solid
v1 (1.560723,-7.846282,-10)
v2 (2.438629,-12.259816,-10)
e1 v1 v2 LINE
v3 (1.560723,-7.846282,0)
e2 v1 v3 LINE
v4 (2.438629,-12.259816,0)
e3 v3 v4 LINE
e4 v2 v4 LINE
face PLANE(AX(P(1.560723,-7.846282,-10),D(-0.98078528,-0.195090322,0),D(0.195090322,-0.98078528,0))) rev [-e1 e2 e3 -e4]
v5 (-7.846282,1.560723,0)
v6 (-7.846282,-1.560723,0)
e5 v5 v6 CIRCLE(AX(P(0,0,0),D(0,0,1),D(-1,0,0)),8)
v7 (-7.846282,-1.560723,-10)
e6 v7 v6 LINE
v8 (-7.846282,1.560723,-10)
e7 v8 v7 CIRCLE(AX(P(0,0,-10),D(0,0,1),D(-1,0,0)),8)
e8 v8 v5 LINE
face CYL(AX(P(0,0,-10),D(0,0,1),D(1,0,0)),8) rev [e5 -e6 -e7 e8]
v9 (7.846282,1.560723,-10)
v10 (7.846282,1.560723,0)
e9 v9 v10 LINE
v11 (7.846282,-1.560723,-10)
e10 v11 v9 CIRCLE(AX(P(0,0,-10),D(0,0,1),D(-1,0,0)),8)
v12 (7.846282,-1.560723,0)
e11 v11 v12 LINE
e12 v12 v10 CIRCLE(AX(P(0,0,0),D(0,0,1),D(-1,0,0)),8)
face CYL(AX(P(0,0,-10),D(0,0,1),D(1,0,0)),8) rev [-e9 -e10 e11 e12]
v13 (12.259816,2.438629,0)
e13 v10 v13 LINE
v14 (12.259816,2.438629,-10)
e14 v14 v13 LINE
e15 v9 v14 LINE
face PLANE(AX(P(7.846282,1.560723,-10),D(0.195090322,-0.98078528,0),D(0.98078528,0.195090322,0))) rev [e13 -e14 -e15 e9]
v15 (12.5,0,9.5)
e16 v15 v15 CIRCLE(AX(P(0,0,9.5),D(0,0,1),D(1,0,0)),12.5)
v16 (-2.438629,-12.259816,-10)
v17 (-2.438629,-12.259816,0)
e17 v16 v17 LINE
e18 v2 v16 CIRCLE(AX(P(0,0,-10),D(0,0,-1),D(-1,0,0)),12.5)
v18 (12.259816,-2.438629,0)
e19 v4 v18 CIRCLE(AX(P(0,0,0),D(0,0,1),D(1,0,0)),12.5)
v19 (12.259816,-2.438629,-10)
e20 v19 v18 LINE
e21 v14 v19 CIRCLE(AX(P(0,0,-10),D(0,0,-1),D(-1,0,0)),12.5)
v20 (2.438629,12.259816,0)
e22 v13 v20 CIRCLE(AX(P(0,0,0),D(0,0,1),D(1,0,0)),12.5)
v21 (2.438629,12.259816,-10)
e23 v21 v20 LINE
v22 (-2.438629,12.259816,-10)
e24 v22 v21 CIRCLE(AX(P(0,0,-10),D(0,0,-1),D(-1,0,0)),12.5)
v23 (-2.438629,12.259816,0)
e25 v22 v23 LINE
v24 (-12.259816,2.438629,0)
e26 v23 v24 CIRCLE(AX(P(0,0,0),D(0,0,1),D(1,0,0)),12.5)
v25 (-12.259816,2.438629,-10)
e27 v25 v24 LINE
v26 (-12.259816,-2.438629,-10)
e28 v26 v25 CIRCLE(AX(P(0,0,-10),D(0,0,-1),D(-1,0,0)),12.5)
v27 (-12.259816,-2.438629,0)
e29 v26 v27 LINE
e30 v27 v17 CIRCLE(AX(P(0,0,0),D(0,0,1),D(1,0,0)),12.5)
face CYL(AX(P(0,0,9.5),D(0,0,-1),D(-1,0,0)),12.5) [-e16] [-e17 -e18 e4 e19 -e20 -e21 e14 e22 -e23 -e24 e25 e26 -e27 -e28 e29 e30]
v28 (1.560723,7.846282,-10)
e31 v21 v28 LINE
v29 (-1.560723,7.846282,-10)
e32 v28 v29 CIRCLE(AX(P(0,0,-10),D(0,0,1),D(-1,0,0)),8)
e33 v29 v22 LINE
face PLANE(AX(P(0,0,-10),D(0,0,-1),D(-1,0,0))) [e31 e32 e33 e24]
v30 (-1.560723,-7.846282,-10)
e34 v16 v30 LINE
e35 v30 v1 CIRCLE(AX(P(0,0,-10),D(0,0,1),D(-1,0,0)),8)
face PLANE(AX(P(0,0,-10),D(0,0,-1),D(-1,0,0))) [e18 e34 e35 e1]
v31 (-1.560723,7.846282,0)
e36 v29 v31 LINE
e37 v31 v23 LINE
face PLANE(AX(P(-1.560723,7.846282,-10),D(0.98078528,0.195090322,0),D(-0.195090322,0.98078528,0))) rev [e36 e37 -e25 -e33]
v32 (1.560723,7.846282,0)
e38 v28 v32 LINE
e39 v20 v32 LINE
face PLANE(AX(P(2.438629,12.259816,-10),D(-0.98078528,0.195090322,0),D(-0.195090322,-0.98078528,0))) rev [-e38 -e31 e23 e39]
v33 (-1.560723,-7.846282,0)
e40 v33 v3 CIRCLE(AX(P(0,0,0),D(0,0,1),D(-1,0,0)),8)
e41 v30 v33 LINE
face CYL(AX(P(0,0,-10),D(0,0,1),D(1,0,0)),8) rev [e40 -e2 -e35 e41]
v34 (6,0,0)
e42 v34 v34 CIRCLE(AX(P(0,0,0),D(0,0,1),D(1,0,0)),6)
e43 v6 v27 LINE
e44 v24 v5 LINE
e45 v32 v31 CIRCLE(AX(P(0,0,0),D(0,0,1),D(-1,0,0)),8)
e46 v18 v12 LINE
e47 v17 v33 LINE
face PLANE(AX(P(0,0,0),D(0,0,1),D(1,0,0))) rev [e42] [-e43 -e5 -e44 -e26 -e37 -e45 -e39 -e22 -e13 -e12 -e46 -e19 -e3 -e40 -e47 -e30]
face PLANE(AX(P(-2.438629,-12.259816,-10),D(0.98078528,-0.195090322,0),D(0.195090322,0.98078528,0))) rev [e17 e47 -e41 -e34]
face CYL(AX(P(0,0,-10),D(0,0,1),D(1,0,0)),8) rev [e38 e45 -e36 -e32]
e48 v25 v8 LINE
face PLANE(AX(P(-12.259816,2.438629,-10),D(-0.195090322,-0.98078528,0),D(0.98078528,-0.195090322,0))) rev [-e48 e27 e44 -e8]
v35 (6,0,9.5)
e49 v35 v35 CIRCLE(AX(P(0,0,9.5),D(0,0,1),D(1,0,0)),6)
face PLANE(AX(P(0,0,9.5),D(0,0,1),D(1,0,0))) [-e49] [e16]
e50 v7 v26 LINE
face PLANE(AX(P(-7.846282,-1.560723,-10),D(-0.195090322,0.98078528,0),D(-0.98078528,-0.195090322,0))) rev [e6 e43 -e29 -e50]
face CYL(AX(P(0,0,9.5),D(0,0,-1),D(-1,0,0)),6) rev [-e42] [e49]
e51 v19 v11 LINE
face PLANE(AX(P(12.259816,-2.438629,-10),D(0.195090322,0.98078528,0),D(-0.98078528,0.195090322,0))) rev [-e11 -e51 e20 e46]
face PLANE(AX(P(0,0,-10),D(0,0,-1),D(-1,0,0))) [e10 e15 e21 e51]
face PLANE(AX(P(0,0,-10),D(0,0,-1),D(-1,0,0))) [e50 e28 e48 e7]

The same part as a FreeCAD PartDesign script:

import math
import FreeCAD as App
import Part
import Sketcher

V = App.Vector
Q = App.Units.Quantity

doc = App.newDocument("Part")
body = doc.addObject("PartDesign::Body", "Body")

sketch1 = doc.addObject("Sketcher::SketchObject", "Sketch")
body.addObject(sketch1)
sketch1.AttachmentSupport = (doc.XY_Plane, [""])
sketch1.MapMode = "FlatFace"
sketch1.addGeometry([
    Part.Circle(V(0, 0, 0), V(0, 0, 1), 12.5),
    Part.Circle(V(0, 0, 0), V(0, 0, 1), 6),
], False)
sketch1.addConstraint([
    Sketcher.Constraint("Coincident", 0, 3, -1, 1),
    Sketcher.Constraint("Coincident", 1, 3, -1, 1),
    Sketcher.Constraint("Diameter", 0, Q("25 mm")),
    Sketcher.Constraint("Diameter", 1, Q("12 mm")),
])
pad1 = doc.addObject("PartDesign::Pad", "Pad")
body.addObject(pad1)
pad1.Profile = sketch1
pad1.Length = 9.5

sketch2 = doc.addObject("Sketcher::SketchObject", "Sketch001")
body.addObject(sketch2)
sketch2.AttachmentSupport = (doc.XY_Plane, [""])
sketch2.MapMode = "FlatFace"
sketch2.addGeometry([
    Part.LineSegment(V(-7.846282, -1.560723, 0), V(-12.259816, -2.438629, 0)),
    Part.ArcOfCircle(Part.Circle(V(0, 0, 0), V(0, 0, 1), 12.5), math.radians(168.75), math.radians(191.25)),
    Part.LineSegment(V(-12.259816, 2.438629, 0), V(-7.846282, 1.560723, 0)),
    Part.ArcOfCircle(Part.Circle(V(0, 0, 0), V(0, 0, 1), 8), math.radians(168.75), math.radians(191.25)),
    Part.LineSegment(V(-1.560723, 7.846282, 0), V(-2.438629, 12.259816, 0)),
    Part.ArcOfCircle(Part.Circle(V(0, 0, 0), V(0, 0, 1), 12.5), math.radians(78.75), math.radians(101.25)),
    Part.LineSegment(V(2.438629, 12.259816, 0), V(1.560723, 7.846282, 0)),
    Part.ArcOfCircle(Part.Circle(V(0, 0, 0), V(0, 0, 1), 8), math.radians(78.75), math.radians(101.25)),
    Part.LineSegment(V(1.560723, -7.846282, 0), V(2.438629, -12.259816, 0)),
    Part.ArcOfCircle(Part.Circle(V(0, 0, 0), V(0, 0, 1), 12.5), math.radians(-101.25), math.radians(-78.75)),
    Part.LineSegment(V(-2.438629, -12.259816, 0), V(-1.560723, -7.846282, 0)),
    Part.ArcOfCircle(Part.Circle(V(0, 0, 0), V(0, 0, 1), 8), math.radians(-101.25), math.radians(-78.75)),
    Part.LineSegment(V(7.846282, 1.560723, 0), V(12.259816, 2.438629, 0)),
    Part.ArcOfCircle(Part.Circle(V(0, 0, 0), V(0, 0, 1), 12.5), math.radians(-11.25), math.radians(11.25)),
    Part.LineSegment(V(12.259816, -2.438629, 0), V(7.846282, -1.560723, 0)),
    Part.ArcOfCircle(Part.Circle(V(0, 0, 0), V(0, 0, 1), 8), math.radians(-11.25), math.radians(11.25)),
], False)
sketch2.addConstraint([
    Sketcher.Constraint("Coincident", 0, 2, 1, 2),
    Sketcher.Constraint("Coincident", 1, 1, 2, 1),
    Sketcher.Constraint("Coincident", 2, 2, 3, 1),
    Sketcher.Constraint("Coincident", 3, 2, 0, 1),
    Sketcher.Constraint("Coincident", 4, 2, 5, 2),
    Sketcher.Constraint("Coincident", 5, 1, 6, 1),
    Sketcher.Constraint("Coincident", 6, 2, 7, 1),
    Sketcher.Constraint("Coincident", 7, 2, 4, 1),
    Sketcher.Constraint("Coincident", 8, 2, 9, 2),
    Sketcher.Constraint("Coincident", 9, 1, 10, 1),
    Sketcher.Constraint("Coincident", 10, 2, 11, 1),
    Sketcher.Constraint("Coincident", 11, 2, 8, 1),
    Sketcher.Constraint("Coincident", 12, 2, 13, 2),
    Sketcher.Constraint("Coincident", 13, 1, 14, 1),
    Sketcher.Constraint("Coincident", 14, 2, 15, 1),
    Sketcher.Constraint("Coincident", 15, 2, 12, 1),
    Sketcher.Constraint("Coincident", 1, 3, -1, 1),
    Sketcher.Constraint("Coincident", 3, 3, -1, 1),
    Sketcher.Constraint("Coincident", 5, 3, -1, 1),
    Sketcher.Constraint("Coincident", 7, 3, -1, 1),
    Sketcher.Constraint("Coincident", 9, 3, -1, 1),
    Sketcher.Constraint("Coincident", 11, 3, -1, 1),
    Sketcher.Constraint("Coincident", 13, 3, -1, 1),
    Sketcher.Constraint("Coincident", 15, 3, -1, 1),
    Sketcher.Constraint("Equal", 1, 5),
    Sketcher.Constraint("Equal", 3, 7),
    Sketcher.Constraint("Equal", 5, 9),
    Sketcher.Constraint("Equal", 7, 11),
    Sketcher.Constraint("Equal", 9, 13),
    Sketcher.Constraint("Equal", 11, 15),
    Sketcher.Constraint("Perpendicular", 0, 4),
    Sketcher.Constraint("Perpendicular", 2, 6),
    Sketcher.Constraint("Parallel", 4, 8),
    Sketcher.Constraint("Parallel", 6, 10),
    Sketcher.Constraint("Perpendicular", 8, 12),
    Sketcher.Constraint("Perpendicular", 10, 14),
    Sketcher.Constraint("Horizontal", 4, 2, 5, 1),
    Sketcher.Constraint("Horizontal", 6, 2, 7, 2),
    Sketcher.Constraint("Horizontal", 8, 2, 9, 1),
    Sketcher.Constraint("Horizontal", 1, 1, 12, 2),
    Sketcher.Constraint("Horizontal", 0, 2, 13, 1),
    Sketcher.Constraint("Vertical", 0, 2, 1, 1),
    Sketcher.Constraint("Vertical", 5, 1, 8, 2),
    Sketcher.Constraint("Radius", 3, Q("8 mm")),
    Sketcher.Constraint("Radius", 1, Q("12.5 mm")),
    Sketcher.Constraint("Angle", 0, Q("-168.75 deg")),
    Sketcher.Constraint("DistanceY", 0, 2, -1, 1, Q("2.438629 mm")),
    Sketcher.Constraint("DistanceX", 4, 2, -1, 1, Q("2.438629 mm")),
])
pad2 = doc.addObject("PartDesign::Pad", "Pad001")
body.addObject(pad2)
pad2.Profile = sketch2
pad2.Length = 10
pad2.Reversed = True

doc.recompute()
